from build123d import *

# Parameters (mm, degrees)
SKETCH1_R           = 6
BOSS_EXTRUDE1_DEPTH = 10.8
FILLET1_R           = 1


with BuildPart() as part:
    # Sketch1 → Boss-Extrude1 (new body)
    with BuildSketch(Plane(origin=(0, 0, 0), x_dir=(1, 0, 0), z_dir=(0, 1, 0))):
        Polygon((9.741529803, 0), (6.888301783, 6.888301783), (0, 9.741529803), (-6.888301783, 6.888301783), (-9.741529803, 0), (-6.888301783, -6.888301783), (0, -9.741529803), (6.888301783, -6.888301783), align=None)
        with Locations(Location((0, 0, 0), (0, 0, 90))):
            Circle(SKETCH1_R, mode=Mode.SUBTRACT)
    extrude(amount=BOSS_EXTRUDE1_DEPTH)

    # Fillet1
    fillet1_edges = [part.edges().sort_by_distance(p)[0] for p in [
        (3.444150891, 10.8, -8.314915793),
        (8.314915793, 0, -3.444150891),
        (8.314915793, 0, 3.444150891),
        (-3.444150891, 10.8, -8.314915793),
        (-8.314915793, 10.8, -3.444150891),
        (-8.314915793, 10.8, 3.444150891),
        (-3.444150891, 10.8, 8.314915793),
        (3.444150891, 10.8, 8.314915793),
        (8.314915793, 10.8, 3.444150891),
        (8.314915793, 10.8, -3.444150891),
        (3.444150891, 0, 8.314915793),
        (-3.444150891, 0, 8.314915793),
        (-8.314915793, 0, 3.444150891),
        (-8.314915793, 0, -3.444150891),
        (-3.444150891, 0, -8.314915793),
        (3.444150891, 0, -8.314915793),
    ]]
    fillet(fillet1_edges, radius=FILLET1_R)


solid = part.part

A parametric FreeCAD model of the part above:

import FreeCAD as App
import Part
import Sketcher

V = App.Vector
Q = App.Units.Quantity


def edges_at(feature, points):
    """Names of the edges that pass closest to the given points."""
    edges = feature.Shape.Edges
    near = lambda p: min(range(len(edges)), key=lambda i: edges[i].distToShape(Part.Vertex(*p))[0])
    return sorted({f"Edge{near(p) + 1}" for p in points})


def add_polygon(sketch, points):
    """Adds a closed chain of lines whose ends are joined by coincident constraints."""
    first, n = sketch.GeometryCount, len(points)
    for a, b in zip(points, points[1:] + points[:1]):
        sketch.addGeometry(Part.LineSegment(App.Vector(*a, 0), App.Vector(*b, 0)), False)
    for i in range(n):
        sketch.addConstraint(Sketcher.Constraint("Coincident", first + i, 2, first + (i + 1) % n, 1))

doc = App.newDocument("Part")
body = doc.addObject("PartDesign::Body", "Body")

sketch1 = body.newObject("Sketcher::SketchObject", "Sketch")
sketch1.AttachmentSupport = (doc.getObject("XZ_Plane"), [""])
sketch1.MapMode = "FlatFace"
add_polygon(sketch1, [(10, 0), (7, -7), (0, -10), (-7, -7), (-10, 0), (-7, 7), (0, 10), (7, 7)])
sketch1.addGeometry(Part.Circle(V(0, 0, 0), V(0, 0, 1), 6), False)
sketch1.addConstraint(Sketcher.Constraint("Coincident", 8, 3, -1, 1))
sketch1.addConstraint(Sketcher.Constraint("Symmetric", 0, 2, 4, 2, -1, 1))
sketch1.addConstraint(Sketcher.Constraint("Symmetric", 1, 2, 5, 2, -1, 1))
sketch1.addConstraint(Sketcher.Constraint("Symmetric", 2, 2, 6, 2, -1, 1))
sketch1.addConstraint(Sketcher.Constraint("Symmetric", 3, 2, 7, 2, -1, 1))
sketch1.addConstraint(Sketcher.Constraint("Symmetric", 0, 2, 2, 2, -2))
sketch1.addConstraint(Sketcher.Constraint("PointOnObject", 1, 2, -2))
sketch1.addConstraint(Sketcher.Constraint("PointOnObject", 3, 2, -1))
sketch1.addConstraint(Sketcher.Constraint("Perpendicular", 0, 2))
sketch1.addConstraint(Sketcher.Constraint("Equal", 0, 1))
sketch1.addConstraint(Sketcher.Constraint("Diameter", 8, Q("12 mm")))
sketch1.addConstraint(Sketcher.Constraint("Angle", 0, Q("-112.5 deg")))
sketch1.addConstraint(Sketcher.Constraint("DistanceX", -1, 1, 0, 2, Q("6.888302 mm")))
pad1 = body.newObject("PartDesign::Pad", "Pad")
pad1.Profile = sketch1
pad1.Length = 10.8
pad1.Reversed = True
doc.recompute()

fillet = body.newObject("PartDesign::Fillet", "Fillet")
fillet.Base = (pad1, edges_at(pad1, [
    (3.444, 10.8, -8.315),
    (8.315, 0, -3.444),
    (8.315, 0, 3.444),
    (-3.444, 10.8, -8.315),
    (-8.315, 10.8, -3.444),
    (-8.315, 10.8, 3.444),
    (-3.444, 10.8, 8.315),
    (3.444, 10.8, 8.315),
    (8.315, 10.8, 3.444),
    (8.315, 10.8, -3.444),
    (3.444, 0, 8.315),
    (-3.444, 0, 8.315),
    (-8.315, 0, 3.444),
    (-8.315, 0, -3.444),
    (-3.444, 0, -8.315),
    (3.444, 0, -8.315),
]))
fillet.Radius = 1

doc.recompute()
